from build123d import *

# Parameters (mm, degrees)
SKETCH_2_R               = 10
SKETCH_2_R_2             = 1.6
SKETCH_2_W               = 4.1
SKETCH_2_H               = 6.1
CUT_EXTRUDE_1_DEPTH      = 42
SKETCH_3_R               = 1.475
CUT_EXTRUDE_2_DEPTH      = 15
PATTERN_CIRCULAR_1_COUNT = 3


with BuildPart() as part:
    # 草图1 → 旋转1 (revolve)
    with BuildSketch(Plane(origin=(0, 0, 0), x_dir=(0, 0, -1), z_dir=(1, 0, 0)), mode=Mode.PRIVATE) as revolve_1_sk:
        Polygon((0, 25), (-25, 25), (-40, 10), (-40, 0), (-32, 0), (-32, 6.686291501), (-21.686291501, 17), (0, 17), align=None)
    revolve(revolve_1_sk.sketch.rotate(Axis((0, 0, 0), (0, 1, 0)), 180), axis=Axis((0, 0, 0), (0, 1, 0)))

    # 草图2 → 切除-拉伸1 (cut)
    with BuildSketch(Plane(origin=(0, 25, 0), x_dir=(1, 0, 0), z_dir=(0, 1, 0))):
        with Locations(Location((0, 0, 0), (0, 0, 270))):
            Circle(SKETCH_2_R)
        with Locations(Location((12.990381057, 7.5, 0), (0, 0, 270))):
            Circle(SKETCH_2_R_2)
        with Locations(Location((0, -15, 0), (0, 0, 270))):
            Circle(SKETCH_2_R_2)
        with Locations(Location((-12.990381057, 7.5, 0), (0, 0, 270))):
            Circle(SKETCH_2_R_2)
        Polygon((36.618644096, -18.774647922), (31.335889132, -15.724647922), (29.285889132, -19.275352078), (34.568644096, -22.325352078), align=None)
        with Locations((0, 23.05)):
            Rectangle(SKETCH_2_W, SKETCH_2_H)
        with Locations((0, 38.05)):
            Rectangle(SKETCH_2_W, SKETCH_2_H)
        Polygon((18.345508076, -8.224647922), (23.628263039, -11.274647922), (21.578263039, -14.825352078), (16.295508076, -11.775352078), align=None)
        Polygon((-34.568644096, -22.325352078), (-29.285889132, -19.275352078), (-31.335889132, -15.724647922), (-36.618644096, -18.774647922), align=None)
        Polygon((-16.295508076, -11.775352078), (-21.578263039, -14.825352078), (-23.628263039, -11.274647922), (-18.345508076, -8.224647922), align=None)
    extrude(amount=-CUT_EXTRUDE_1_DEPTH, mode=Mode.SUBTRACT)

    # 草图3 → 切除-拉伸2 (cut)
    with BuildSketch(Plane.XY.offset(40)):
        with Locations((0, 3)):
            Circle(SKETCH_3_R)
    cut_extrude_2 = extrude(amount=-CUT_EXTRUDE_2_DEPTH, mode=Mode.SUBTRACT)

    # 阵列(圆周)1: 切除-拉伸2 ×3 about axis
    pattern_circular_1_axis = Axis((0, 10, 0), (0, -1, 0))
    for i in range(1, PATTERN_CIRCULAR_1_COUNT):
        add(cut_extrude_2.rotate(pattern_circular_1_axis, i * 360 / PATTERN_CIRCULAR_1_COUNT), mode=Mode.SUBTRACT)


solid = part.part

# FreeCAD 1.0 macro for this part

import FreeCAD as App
import Part
import Sketcher
Q = App.Units.Quantity

doc = App.newDocument("Part")
body = doc.addObject("PartDesign::Body", "Body")

sketch1 = body.newObject("Sketcher::SketchObject", "Sketch")
sketch1.AttachmentSupport = (doc.getObject("YZ_Plane"), [""])
sketch1.MapMode = "FlatFace"
sketch1.addGeometry([
    Part.LineSegment(App.Vector(25, 0, 0), App.Vector(25, 25, 0)),
    Part.LineSegment(App.Vector(25, 25, 0), App.Vector(10, 40, 0)),
    Part.LineSegment(App.Vector(10, 40, 0), App.Vector(0, 40, 0)),
    Part.LineSegment(App.Vector(0, 40, 0), App.Vector(0, 32, 0)),
    Part.LineSegment(App.Vector(0, 32, 0), App.Vector(7, 32, 0)),
    Part.LineSegment(App.Vector(7, 32, 0), App.Vector(17, 22, 0)),
    Part.LineSegment(App.Vector(17, 22, 0), App.Vector(17, 0, 0)),
    Part.LineSegment(App.Vector(17, 0, 0), App.Vector(25, 0, 0)),
], False)
sketch1.addConstraint([
    Sketcher.Constraint("Coincident", 0, 2, 1, 1),
    Sketcher.Constraint("Coincident", 1, 2, 2, 1),
    Sketcher.Constraint("Coincident", 2, 2, 3, 1),
    Sketcher.Constraint("Coincident", 3, 2, 4, 1),
    Sketcher.Constraint("Coincident", 4, 2, 5, 1),
    Sketcher.Constraint("Coincident", 5, 2, 6, 1),
    Sketcher.Constraint("Coincident", 6, 2, 7, 1),
    Sketcher.Constraint("Coincident", 7, 2, 0, 1),
    Sketcher.Constraint("Vertical", 0),
    Sketcher.Constraint("Horizontal", 2),
    Sketcher.Constraint("Vertical", 3),
    Sketcher.Constraint("Horizontal", 4),
    Sketcher.Constraint("Vertical", 6),
    Sketcher.Constraint("Horizontal", 7),
    Sketcher.Constraint("PointOnObject", 2, 2, -2),
    Sketcher.Constraint("PointOnObject", 6, 2, -1),
    Sketcher.Constraint("Parallel", 1, 5),
    Sketcher.Constraint("Equal", 7, 3),
    Sketcher.Constraint("DistanceX", 2, 2, 2, 1, Q("10 mm")),
    Sketcher.Constraint("DistanceX", 7, 1, 7, 2, Q("8 mm")),
    Sketcher.Constraint("DistanceY", 0, 1, 0, 2, Q("25 mm")),
    Sketcher.Constraint("Angle", 1, Q("135 deg")),
    Sketcher.Constraint("DistanceX", -1, 1, 0, 2, Q("25 mm")),
    Sketcher.Constraint("DistanceX", 4, 1, 4, 2, Q("6.686292 mm")),
])
revolution = body.newObject("PartDesign::Revolution", "Revolution")
revolution.Profile = sketch1
revolution.ReferenceAxis = (sketch1, ["H_Axis"])
revolution.Angle = 360

sketch2 = body.newObject("Sketcher::SketchObject", "Sketch001")
sketch2.AttachmentSupport = (doc.getObject("XZ_Plane"), [""])
sketch2.MapMode = "FlatFace"
sketch2.AttachmentOffset = App.Placement(App.Vector(0, 0, -25), App.Rotation())
sketch2.addGeometry([
    Part.Circle(App.Vector(0, 0, 0), App.Vector(0, 0, 1), 10),
    Part.Circle(App.Vector(13, -7.5, 0), App.Vector(0, 0, 1), 1.6),
    Part.Circle(App.Vector(0, 15, 0), App.Vector(0, 0, 1), 1.6),
    Part.Circle(App.Vector(-13, -7.5, 0), App.Vector(0, 0, 1), 1.6),
    Part.LineSegment(App.Vector(36.6, 18.8, 0), App.Vector(31.3, 15.7, 0)),
    Part.LineSegment(App.Vector(31.3, 15.7, 0), App.Vector(29.3, 19.3, 0)),
    Part.LineSegment(App.Vector(29.3, 19.3, 0), App.Vector(34.6, 22.3, 0)),
    Part.LineSegment(App.Vector(34.6, 22.3, 0), App.Vector(36.6, 18.8, 0)),
    Part.LineSegment(App.Vector(-2, -26.1, 0), App.Vector(-2, -20, 0)),
    Part.LineSegment(App.Vector(-2, -20, 0), App.Vector(2, -20, 0)),
    Part.LineSegment(App.Vector(2, -20, 0), App.Vector(2, -26.1, 0)),
    Part.LineSegment(App.Vector(2, -26.1, 0), App.Vector(-2, -26.1, 0)),
    Part.LineSegment(App.Vector(-2, -41.1, 0), App.Vector(-2, -35, 0)),
    Part.LineSegment(App.Vector(-2, -35, 0), App.Vector(2, -35, 0)),
    Part.LineSegment(App.Vector(2, -35, 0), App.Vector(2, -41.1, 0)),
    Part.LineSegment(App.Vector(2, -41.1, 0), App.Vector(-2, -41.1, 0)),
    Part.LineSegment(App.Vector(23.6, 11.3, 0), App.Vector(18.3, 8.2, 0)),
    Part.LineSegment(App.Vector(18.3, 8.2, 0), App.Vector(16.3, 11.8, 0)),
    Part.LineSegment(App.Vector(16.3, 11.8, 0), App.Vector(21.6, 14.8, 0)),
    Part.LineSegment(App.Vector(21.6, 14.8, 0), App.Vector(23.6, 11.3, 0)),
    Part.LineSegment(App.Vector(-34.6, 22.3, 0), App.Vector(-29.3, 19.3, 0)),
    Part.LineSegment(App.Vector(-29.3, 19.3, 0), App.Vector(-31.3, 15.7, 0)),
    Part.LineSegment(App.Vector(-31.3, 15.7, 0), App.Vector(-36.6, 18.8, 0)),
    Part.LineSegment(App.Vector(-36.6, 18.8, 0), App.Vector(-34.6, 22.3, 0)),
    Part.LineSegment(App.Vector(-21.6, 14.8, 0), App.Vector(-16.3, 11.8, 0)),
    Part.LineSegment(App.Vector(-16.3, 11.8, 0), App.Vector(-18.3, 8.2, 0)),
    Part.LineSegment(App.Vector(-18.3, 8.2, 0), App.Vector(-23.6, 11.3, 0)),
    Part.LineSegment(App.Vector(-23.6, 11.3, 0), App.Vector(-21.6, 14.8, 0)),
], False)
sketch2.addConstraint([
    Sketcher.Constraint("Coincident", 4, 2, 5, 1),
    Sketcher.Constraint("Coincident", 5, 2, 6, 1),
    Sketcher.Constraint("Coincident", 6, 2, 7, 1),
    Sketcher.Constraint("Coincident", 7, 2, 4, 1),
    Sketcher.Constraint("Coincident", 8, 2, 9, 1),
    Sketcher.Constraint("Coincident", 9, 2, 10, 1),
    Sketcher.Constraint("Coincident", 10, 2, 11, 1),
    Sketcher.Constraint("Coincident", 11, 2, 8, 1),
    Sketcher.Constraint("Coincident", 12, 2, 13, 1),
    Sketcher.Constraint("Coincident", 13, 2, 14, 1),
    Sketcher.Constraint("Coincident", 14, 2, 15, 1),
    Sketcher.Constraint("Coincident", 15, 2, 12, 1),
    Sketcher.Constraint("Coincident", 16, 2, 17, 1),
    Sketcher.Constraint("Coincident", 17, 2, 18, 1),
    Sketcher.Constraint("Coincident", 18, 2, 19, 1),
    Sketcher.Constraint("Coincident", 19, 2, 16, 1),
    Sketcher.Constraint("Coincident", 20, 2, 21, 1),
    Sketcher.Constraint("Coincident", 21, 2, 22, 1),
    Sketcher.Constraint("Coincident", 22, 2, 23, 1),
    Sketcher.Constraint("Coincident", 23, 2, 20, 1),
    Sketcher.Constraint("Coincident", 24, 2, 25, 1),
    Sketcher.Constraint("Coincident", 25, 2, 26, 1),
    Sketcher.Constraint("Coincident", 26, 2, 27, 1),
    Sketcher.Constraint("Coincident", 27, 2, 24, 1),
    Sketcher.Constraint("Vertical", 8),
    Sketcher.Constraint("Horizontal", 9),
    Sketcher.Constraint("Vertical", 10),
    Sketcher.Constraint("Horizontal", 11),
    Sketcher.Constraint("Vertical", 12),
    Sketcher.Constraint("Horizontal", 13),
    Sketcher.Constraint("Vertical", 14),
    Sketcher.Constraint("Horizontal", 15),
    Sketcher.Constraint("Coincident", 0, 3, -1, 1),
    Sketcher.Constraint("Equal", 1, 2),
    Sketcher.Constraint("Equal", 2, 3),
    Sketcher.Constraint("Symmetric", 1, 3, 3, 3, -2),
    Sketcher.Constraint("Symmetric", 5, 2, 20, 2, -2),
    Sketcher.Constraint("Symmetric", 4, 2, 21, 2, -2),
    Sketcher.Constraint("Symmetric", 7, 2, 22, 2, -2),
    Sketcher.Constraint("Symmetric", 6, 2, 23, 2, -2),
    Sketcher.Constraint("Symmetric", 17, 2, 24, 2, -2),
    Sketcher.Constraint("Symmetric", 16, 2, 25, 2, -2),
    Sketcher.Constraint("Symmetric", 19, 2, 26, 2, -2),
    Sketcher.Constraint("Symmetric", 18, 2, 27, 2, -2),
    Sketcher.Constraint("PointOnObject", 2, 3, -2),
    Sketcher.Constraint("Perpendicular", 4, 5),
    Sketcher.Constraint("Perpendicular", 5, 6),
    Sketcher.Constraint("Perpendicular", 6, 7),
    Sketcher.Constraint("Perpendicular", 7, 16),
    Sketcher.Constraint("Perpendicular", 16, 17),
    Sketcher.Constraint("Perpendicular", 17, 18),
    Sketcher.Constraint("Perpendicular", 18, 19),
    Sketcher.Constraint("Vertical", 11, 2, 12, 2),
    Sketcher.Constraint("Vertical", 10, 2, 13, 2),
    Sketcher.Constraint("Equal", 10, 12),
    Sketcher.Constraint("Equal", 6, 16),
    Sketcher.Constraint("Equal", 7, 17),
    Sketcher.Constraint("Diameter", 0, Q("20 mm")),
    Sketcher.Constraint("Diameter", 1, Q("3.2 mm")),
    Sketcher.Constraint("Angle", 4, Q("-150 deg")),
    Sketcher.Constraint("DistanceX", 9, 1, 9, 2, Q("4.1 mm")),
    Sketcher.Constraint("DistanceY", 8, 1, 8, 2, Q("6.1 mm")),
    Sketcher.Constraint("DistanceY", -1, 1, 2, 3, Q("15 mm")),
    Sketcher.Constraint("DistanceY", 8, 2, -1, 1, Q("20 mm")),
    Sketcher.Constraint("DistanceY", 12, 2, -1, 1, Q("35 mm")),
    Sketcher.Constraint("Distance", 4, Q("6.1 mm")),
    Sketcher.Constraint("Distance", 5, Q("4.1 mm")),
    Sketcher.Constraint("DistanceY", 1, 3, -1, 1, Q("7.5 mm")),
    Sketcher.Constraint("DistanceY", 16, 2, 4, 2, Q("7.5 mm")),
    Sketcher.Constraint("DistanceX", 8, 2, -1, 1, Q("2.05 mm")),
    Sketcher.Constraint("DistanceX", -1, 1, 1, 3, Q("12.990381 mm")),
    Sketcher.Constraint("DistanceX", -1, 1, 4, 2, Q("31.335889 mm")),
    Sketcher.Constraint("DistanceX", -1, 1, 16, 2, Q("18.345508 mm")),
    Sketcher.Constraint("DistanceY", -1, 1, 4, 2, Q("15.724648 mm")),
])
pocket1 = body.newObject("PartDesign::Pocket", "Pocket")
pocket1.Profile = sketch2
pocket1.Length = 42
pocket1.Reversed = True

sketch3 = body.newObject("Sketcher::SketchObject", "Sketch002")
sketch3.AttachmentSupport = (doc.getObject("XY_Plane"), [""])
sketch3.MapMode = "FlatFace"
sketch3.AttachmentOffset = App.Placement(App.Vector(0, 0, 40), App.Rotation())
sketch3.addGeometry(Part.Circle(App.Vector(0, 3, 0), App.Vector(0, 0, 1), 1.5), False)
sketch3.addConstraint([
    Sketcher.Constraint("PointOnObject", 0, 3, -2),
    Sketcher.Constraint("Diameter", 0, Q("2.95 mm")),
    Sketcher.Constraint("DistanceY", -1, 1, 0, 3, Q("3 mm")),
])
pocket2 = body.newObject("PartDesign::Pocket", "Pocket001")
pocket2.Profile = sketch3
pocket2.Length = 15
doc.recompute()

polarpattern = body.newObject("PartDesign::PolarPattern", "PolarPattern")
polarpattern.Originals = [pocket2]
polarpattern.Axis = (doc.getObject("Y_Axis"), [""])
polarpattern.Angle = 360
polarpattern.Occurrences = 3
body.Tip = polarpattern

doc.recompute()
